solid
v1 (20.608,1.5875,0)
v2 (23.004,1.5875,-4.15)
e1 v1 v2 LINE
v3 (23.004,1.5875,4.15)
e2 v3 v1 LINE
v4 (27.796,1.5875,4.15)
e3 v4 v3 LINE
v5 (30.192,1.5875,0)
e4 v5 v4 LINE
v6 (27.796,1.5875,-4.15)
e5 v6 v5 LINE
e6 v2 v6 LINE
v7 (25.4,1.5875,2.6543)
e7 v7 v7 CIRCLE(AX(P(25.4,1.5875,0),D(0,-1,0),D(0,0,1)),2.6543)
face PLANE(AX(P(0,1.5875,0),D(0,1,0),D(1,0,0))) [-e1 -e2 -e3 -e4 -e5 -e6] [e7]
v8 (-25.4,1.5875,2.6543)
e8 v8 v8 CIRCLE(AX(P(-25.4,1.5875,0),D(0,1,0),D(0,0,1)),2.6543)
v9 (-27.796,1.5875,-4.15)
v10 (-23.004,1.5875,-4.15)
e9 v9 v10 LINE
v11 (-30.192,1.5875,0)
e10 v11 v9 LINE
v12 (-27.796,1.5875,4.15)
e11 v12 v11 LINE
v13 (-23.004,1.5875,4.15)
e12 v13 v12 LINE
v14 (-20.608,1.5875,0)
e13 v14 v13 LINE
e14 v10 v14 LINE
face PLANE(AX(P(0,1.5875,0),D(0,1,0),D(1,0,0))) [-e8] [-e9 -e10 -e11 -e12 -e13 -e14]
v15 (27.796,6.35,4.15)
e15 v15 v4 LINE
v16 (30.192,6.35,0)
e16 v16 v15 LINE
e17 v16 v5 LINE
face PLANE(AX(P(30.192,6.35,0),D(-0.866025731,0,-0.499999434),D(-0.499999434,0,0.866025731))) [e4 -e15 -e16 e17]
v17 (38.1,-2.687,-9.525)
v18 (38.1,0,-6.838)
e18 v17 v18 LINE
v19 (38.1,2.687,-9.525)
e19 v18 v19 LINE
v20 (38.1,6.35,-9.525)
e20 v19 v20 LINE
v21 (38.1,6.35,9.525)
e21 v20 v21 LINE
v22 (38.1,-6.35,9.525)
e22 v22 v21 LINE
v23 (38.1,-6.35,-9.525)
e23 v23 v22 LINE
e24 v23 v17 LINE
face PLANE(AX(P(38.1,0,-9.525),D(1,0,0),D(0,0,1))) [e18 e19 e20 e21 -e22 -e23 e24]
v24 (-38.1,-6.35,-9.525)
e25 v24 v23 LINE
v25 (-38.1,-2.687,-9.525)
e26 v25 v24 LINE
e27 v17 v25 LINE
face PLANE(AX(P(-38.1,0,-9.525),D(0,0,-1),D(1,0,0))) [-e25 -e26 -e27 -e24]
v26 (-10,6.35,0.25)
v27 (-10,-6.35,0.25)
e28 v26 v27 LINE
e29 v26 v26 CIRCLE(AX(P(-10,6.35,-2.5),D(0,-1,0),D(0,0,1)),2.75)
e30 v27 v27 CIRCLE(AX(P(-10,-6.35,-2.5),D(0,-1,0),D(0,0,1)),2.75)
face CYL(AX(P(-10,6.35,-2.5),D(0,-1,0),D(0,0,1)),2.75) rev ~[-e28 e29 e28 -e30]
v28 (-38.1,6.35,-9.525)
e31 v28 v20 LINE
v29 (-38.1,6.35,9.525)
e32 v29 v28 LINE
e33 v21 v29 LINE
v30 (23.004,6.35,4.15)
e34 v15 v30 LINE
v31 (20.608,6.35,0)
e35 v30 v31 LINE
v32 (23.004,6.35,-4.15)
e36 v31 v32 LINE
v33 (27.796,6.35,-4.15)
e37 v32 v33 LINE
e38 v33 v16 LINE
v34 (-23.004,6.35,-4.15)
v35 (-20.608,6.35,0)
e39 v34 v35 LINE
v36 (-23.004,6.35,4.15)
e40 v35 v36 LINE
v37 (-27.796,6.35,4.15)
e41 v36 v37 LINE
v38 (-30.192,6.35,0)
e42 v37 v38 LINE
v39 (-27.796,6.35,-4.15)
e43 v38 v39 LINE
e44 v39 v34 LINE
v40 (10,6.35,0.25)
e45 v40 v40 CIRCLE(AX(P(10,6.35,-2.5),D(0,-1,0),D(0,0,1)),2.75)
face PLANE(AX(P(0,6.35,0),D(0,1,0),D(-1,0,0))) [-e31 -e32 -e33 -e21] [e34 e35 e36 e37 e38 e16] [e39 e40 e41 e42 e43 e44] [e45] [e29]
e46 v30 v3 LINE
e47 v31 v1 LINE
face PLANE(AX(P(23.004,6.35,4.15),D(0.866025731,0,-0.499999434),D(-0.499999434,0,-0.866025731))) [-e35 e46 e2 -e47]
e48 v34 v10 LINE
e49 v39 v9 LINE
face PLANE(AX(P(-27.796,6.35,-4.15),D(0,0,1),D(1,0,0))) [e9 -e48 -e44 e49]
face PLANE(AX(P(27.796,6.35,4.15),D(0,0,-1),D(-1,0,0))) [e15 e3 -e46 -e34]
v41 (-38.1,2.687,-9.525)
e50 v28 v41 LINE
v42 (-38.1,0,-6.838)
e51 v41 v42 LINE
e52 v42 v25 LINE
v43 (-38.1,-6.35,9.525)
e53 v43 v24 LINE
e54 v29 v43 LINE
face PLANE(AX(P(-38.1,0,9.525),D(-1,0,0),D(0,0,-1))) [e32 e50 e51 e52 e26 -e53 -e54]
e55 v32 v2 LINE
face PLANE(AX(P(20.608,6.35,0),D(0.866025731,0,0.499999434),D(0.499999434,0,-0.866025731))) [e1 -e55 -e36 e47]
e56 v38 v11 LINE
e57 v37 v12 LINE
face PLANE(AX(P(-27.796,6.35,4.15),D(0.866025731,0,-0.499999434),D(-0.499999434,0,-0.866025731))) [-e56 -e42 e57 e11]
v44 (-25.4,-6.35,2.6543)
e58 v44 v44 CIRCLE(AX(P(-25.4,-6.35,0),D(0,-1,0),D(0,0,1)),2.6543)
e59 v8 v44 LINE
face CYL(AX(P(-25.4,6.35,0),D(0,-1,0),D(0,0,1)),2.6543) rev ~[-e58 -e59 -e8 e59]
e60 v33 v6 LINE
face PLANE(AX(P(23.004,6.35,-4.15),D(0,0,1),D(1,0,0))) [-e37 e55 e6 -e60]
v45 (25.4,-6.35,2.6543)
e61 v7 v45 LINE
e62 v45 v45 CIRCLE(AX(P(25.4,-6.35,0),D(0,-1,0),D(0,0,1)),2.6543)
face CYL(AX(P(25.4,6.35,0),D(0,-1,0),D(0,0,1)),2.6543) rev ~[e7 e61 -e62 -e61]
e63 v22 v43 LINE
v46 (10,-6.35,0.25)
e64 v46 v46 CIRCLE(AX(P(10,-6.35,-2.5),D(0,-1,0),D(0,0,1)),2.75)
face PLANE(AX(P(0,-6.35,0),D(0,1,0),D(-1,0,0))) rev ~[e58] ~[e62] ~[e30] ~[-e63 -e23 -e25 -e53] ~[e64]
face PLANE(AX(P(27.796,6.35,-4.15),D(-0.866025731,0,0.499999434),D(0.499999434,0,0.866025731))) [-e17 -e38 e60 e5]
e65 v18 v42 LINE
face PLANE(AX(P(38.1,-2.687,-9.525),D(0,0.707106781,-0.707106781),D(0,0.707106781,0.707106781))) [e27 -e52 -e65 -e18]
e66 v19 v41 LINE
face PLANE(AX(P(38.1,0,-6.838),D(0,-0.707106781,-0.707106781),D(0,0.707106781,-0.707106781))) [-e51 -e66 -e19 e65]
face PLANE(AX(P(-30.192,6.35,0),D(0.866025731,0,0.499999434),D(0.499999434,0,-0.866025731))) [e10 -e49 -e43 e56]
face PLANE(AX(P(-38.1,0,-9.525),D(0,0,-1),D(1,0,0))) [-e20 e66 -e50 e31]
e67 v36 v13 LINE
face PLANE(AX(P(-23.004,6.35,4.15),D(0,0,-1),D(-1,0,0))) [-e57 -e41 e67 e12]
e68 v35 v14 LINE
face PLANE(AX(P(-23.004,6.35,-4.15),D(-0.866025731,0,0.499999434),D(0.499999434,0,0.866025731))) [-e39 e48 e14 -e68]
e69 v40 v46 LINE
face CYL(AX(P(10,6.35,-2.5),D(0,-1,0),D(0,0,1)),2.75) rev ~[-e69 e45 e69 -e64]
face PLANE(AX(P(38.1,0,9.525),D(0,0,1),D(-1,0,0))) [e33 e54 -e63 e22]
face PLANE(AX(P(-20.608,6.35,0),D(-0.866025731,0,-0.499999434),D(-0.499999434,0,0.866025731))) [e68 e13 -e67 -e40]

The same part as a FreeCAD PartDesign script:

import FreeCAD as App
import Part
import Sketcher
Q = App.Units.Quantity

doc = App.newDocument("Part")
body = doc.addObject("PartDesign::Body", "Body")

sketch1 = body.newObject("Sketcher::SketchObject", "Sketch")
sketch1.AttachmentSupport = (doc.getObject("XZ_Plane"), [""])
sketch1.MapMode = "FlatFace"
sketch1.addGeometry(Part.LineSegment(App.Vector(-38, 10, 0), App.Vector(38, 10, 0)), False)
sketch1.addGeometry(Part.LineSegment(App.Vector(38, 10, 0), App.Vector(38, -10, 0)), False)
sketch1.addGeometry(Part.LineSegment(App.Vector(38, -10, 0), App.Vector(-38, -10, 0)), False)
sketch1.addGeometry(Part.LineSegment(App.Vector(-38, -10, 0), App.Vector(-38, 10, 0)), False)
sketch1.addConstraint(Sketcher.Constraint("Coincident", 0, 2, 1, 1))
sketch1.addConstraint(Sketcher.Constraint("Coincident", 1, 2, 2, 1))
sketch1.addConstraint(Sketcher.Constraint("Coincident", 2, 2, 3, 1))
sketch1.addConstraint(Sketcher.Constraint("Coincident", 3, 2, 0, 1))
sketch1.addConstraint(Sketcher.Constraint("Horizontal", 0))
sketch1.addConstraint(Sketcher.Constraint("Vertical", 1))
sketch1.addConstraint(Sketcher.Constraint("Horizontal", 2))
sketch1.addConstraint(Sketcher.Constraint("Vertical", 3))
sketch1.addConstraint(Sketcher.Constraint("Symmetric", 0, 2, 2, 2, -1, 1))
sketch1.addConstraint(Sketcher.Constraint("DistanceX", 0, 1, 0, 2, Q("3 in")))
sketch1.addConstraint(Sketcher.Constraint("DistanceY", 1, 2, 1, 1, Q("0.75 in")))
pad1 = body.newObject("PartDesign::Pad", "Pad")
pad1.Profile = sketch1
pad1.Length = Q("0.5 in")
pad1.Midplane = True

sketch2 = body.newObject("Sketcher::SketchObject", "Sketch001")
sketch2.AttachmentSupport = (doc.getObject("YZ_Plane"), [""])
sketch2.MapMode = "FlatFace"
sketch2.AttachmentOffset = App.Placement(App.Vector(0, 0, 1.5 * 25.4), App.Rotation())
sketch2.addGeometry(Part.LineSegment(App.Vector(0, -12.2, 0), App.Vector(2.7, -9.5, 0)), False)
sketch2.addGeometry(Part.LineSegment(App.Vector(2.7, -9.5, 0), App.Vector(0, -6.8, 0)), False)
sketch2.addGeometry(Part.LineSegment(App.Vector(0, -6.8, 0), App.Vector(-2.7, -9.5, 0)), False)
sketch2.addGeometry(Part.LineSegment(App.Vector(-2.7, -9.5, 0), App.Vector(0, -12.2, 0)), False)
sketch2.addConstraint(Sketcher.Constraint("Coincident", 0, 2, 1, 1))
sketch2.addConstraint(Sketcher.Constraint("Coincident", 1, 2, 2, 1))
sketch2.addConstraint(Sketcher.Constraint("Coincident", 2, 2, 3, 1))
sketch2.addConstraint(Sketcher.Constraint("Coincident", 3, 2, 0, 1))
sketch2.addConstraint(Sketcher.Constraint("Symmetric", 0, 2, 2, 2, -2))
sketch2.addConstraint(Sketcher.Constraint("PointOnObject", 1, 2, -2))
sketch2.addConstraint(Sketcher.Constraint("PointOnObject", 3, 2, -2))
sketch2.addConstraint(Sketcher.Constraint("Perpendicular", 0, 1))
sketch2.addConstraint(Sketcher.Constraint("Perpendicular", 1, 2))
sketch2.addConstraint(Sketcher.Constraint("Distance", 0, Q("0.1496 in")))
sketch2.addConstraint(Sketcher.Constraint("DistanceY", 0, 2, -1, 1, Q("0.375 in")))
pocket1 = body.newObject("PartDesign::Pocket", "Pocket")
pocket1.Profile = sketch2
pocket1.Type = "ThroughAll"

sketch3 = body.newObject("Sketcher::SketchObject", "Sketch002")
sketch3.AttachmentSupport = (doc.getObject("XZ_Plane"), [""])
sketch3.MapMode = "FlatFace"
sketch3.AttachmentOffset = App.Placement(App.Vector(0, 0, -0.25 * 25.4), App.Rotation())
sketch3.addGeometry(Part.Circle(App.Vector(-25.4, 0, 0), App.Vector(0, 0, 1), 2.7), False)
sketch3.addGeometry(Part.Circle(App.Vector(25.4, 0, 0), App.Vector(0, 0, 1), 2.7), False)
sketch3.addConstraint(Sketcher.Constraint("Equal", 0, 1))
sketch3.addConstraint(Sketcher.Constraint("Symmetric", 0, 3, 1, 3, -1, 1))
sketch3.addConstraint(Sketcher.Constraint("PointOnObject", 0, 3, -1))
sketch3.addConstraint(Sketcher.Constraint("Diameter", 0, Q("0.209 in")))
sketch3.addConstraint(Sketcher.Constraint("DistanceX", 0, 3, -1, 1, Q("1 in")))
doc.recompute()
hole = body.newObject("PartDesign::Hole", "Hole")
hole.Profile = sketch3
hole.ThreadType = "None"
hole.Diameter = Q("0.209 in")
hole.DepthType = "ThroughAll"
hole.Reversed = True

sketch4 = body.newObject("Sketcher::SketchObject", "Sketch003")
sketch4.AttachmentSupport = (doc.getObject("XZ_Plane"), [""])
sketch4.MapMode = "FlatFace"
sketch4.AttachmentOffset = App.Placement(App.Vector(0, 0, -0.25 * 25.4), App.Rotation())
sketch4.addGeometry(Part.Circle(App.Vector(-10, -2.5, 0), App.Vector(0, 0, 1), 2.8), False)
sketch4.addGeometry(Part.Circle(App.Vector(10, -2.5, 0), App.Vector(0, 0, 1), 2.8), False)
sketch4.addConstraint(Sketcher.Constraint("Equal", 0, 1))
sketch4.addConstraint(Sketcher.Constraint("Symmetric", 0, 3, 1, 3, -2))
sketch4.addConstraint(Sketcher.Constraint("Diameter", 0, 5.5))
sketch4.addConstraint(Sketcher.Constraint("DistanceX", 0, 3, -1, 1, Q("0.3937 in")))
sketch4.addConstraint(Sketcher.Constraint("DistanceY", 0, 3, -1, 1, 2.5))
doc.recompute()
hole2 = body.newObject("PartDesign::Hole", "Hole001")
hole2.Profile = sketch4
hole2.ThreadType = "None"
hole2.Diameter = 5.5
hole2.DepthType = "ThroughAll"
hole2.Reversed = True

sketch5 = body.newObject("Sketcher::SketchObject", "Sketch004")
sketch5.AttachmentSupport = (doc.getObject("XZ_Plane"), [""])
sketch5.MapMode = "FlatFace"
sketch5.AttachmentOffset = App.Placement(App.Vector(0, 0, -0.25 * 25.4), App.Rotation())
sketch5.addGeometry(Part.LineSegment(App.Vector(20.6, 0, 0), App.Vector(23, 4.2, 0)), False)
sketch5.addGeometry(Part.LineSegment(App.Vector(23, 4.2, 0), App.Vector(27.8, 4.2, 0)), False)
sketch5.addGeometry(Part.LineSegment(App.Vector(27.8, 4.2, 0), App.Vector(30.2, 0, 0)), False)
sketch5.addGeometry(Part.LineSegment(App.Vector(30.2, 0, 0), App.Vector(27.8, -4.2, 0)), False)
sketch5.addGeometry(Part.LineSegment(App.Vector(27.8, -4.2, 0), App.Vector(23, -4.2, 0)), False)
sketch5.addGeometry(Part.LineSegment(App.Vector(23, -4.2, 0), App.Vector(20.6, 0, 0)), False)
sketch5.addGeometry(Part.LineSegment(App.Vector(-20.6, 0, 0), App.Vector(-23, -4.2, 0)), False)
sketch5.addGeometry(Part.LineSegment(App.Vector(-23, -4.2, 0), App.Vector(-27.8, -4.2, 0)), False)
sketch5.addGeometry(Part.LineSegment(App.Vector(-27.8, -4.2, 0), App.Vector(-30.2, 0, 0)), False)
sketch5.addGeometry(Part.LineSegment(App.Vector(-30.2, 0, 0), App.Vector(-27.8, 4.2, 0)), False)
sketch5.addGeometry(Part.LineSegment(App.Vector(-27.8, 4.2, 0), App.Vector(-23, 4.2, 0)), False)
sketch5.addGeometry(Part.LineSegment(App.Vector(-23, 4.2, 0), App.Vector(-20.6, 0, 0)), False)
sketch5.addGeometry(Part.Circle(App.Vector(-25.4, 0, 0), App.Vector(0, 0, 1), 2.7), False)
sketch5.addConstraint(Sketcher.Constraint("Coincident", 0, 2, 1, 1))
sketch5.addConstraint(Sketcher.Constraint("Coincident", 1, 2, 2, 1))
sketch5.addConstraint(Sketcher.Constraint("Coincident", 2, 2, 3, 1))
sketch5.addConstraint(Sketcher.Constraint("Coincident", 3, 2, 4, 1))
sketch5.addConstraint(Sketcher.Constraint("Coincident", 4, 2, 5, 1))
sketch5.addConstraint(Sketcher.Constraint("Coincident", 5, 2, 0, 1))
sketch5.addConstraint(Sketcher.Constraint("Coincident", 6, 2, 7, 1))
sketch5.addConstraint(Sketcher.Constraint("Coincident", 7, 2, 8, 1))
sketch5.addConstraint(Sketcher.Constraint("Coincident", 8, 2, 9, 1))
sketch5.addConstraint(Sketcher.Constraint("Coincident", 9, 2, 10, 1))
sketch5.addConstraint(Sketcher.Constraint("Coincident", 10, 2, 11, 1))
sketch5.addConstraint(Sketcher.Constraint("Coincident", 11, 2, 6, 1))
sketch5.addConstraint(Sketcher.Constraint("Horizontal", 1))
sketch5.addConstraint(Sketcher.Constraint("Horizontal", 4))
sketch5.addConstraint(Sketcher.Constraint("Horizontal", 7))
sketch5.addConstraint(Sketcher.Constraint("Horizontal", 10))
sketch5.addConstraint(Sketcher.Constraint("Symmetric", 0, 2, 6, 2, -1, 1))
sketch5.addConstraint(Sketcher.Constraint("Symmetric", 2, 2, 8, 2, -1, 1))
sketch5.addConstraint(Sketcher.Constraint("Symmetric", 3, 2, 9, 2, -1, 1))
sketch5.addConstraint(Sketcher.Constraint("Symmetric", 5, 2, 11, 2, -1, 1))
sketch5.addConstraint(Sketcher.Constraint("Symmetric", 4, 2, 6, 2, -2))
sketch5.addConstraint(Sketcher.Constraint("PointOnObject", 12, 3, -1))
sketch5.addConstraint(Sketcher.Constraint("PointOnObject", 2, 2, -1))
sketch5.addConstraint(Sketcher.Constraint("PointOnObject", 5, 2, -1))
sketch5.addConstraint(Sketcher.Constraint("Parallel", 0, 3))
sketch5.addConstraint(Sketcher.Constraint("Parallel", 2, 5))
sketch5.addConstraint(Sketcher.Constraint("Parallel", 5, 8))
sketch5.addConstraint(Sketcher.Constraint("Parallel", 8, 11))
sketch5.addConstraint(Sketcher.Constraint("Diameter", 12, Q("0.209 in")))
sketch5.addConstraint(Sketcher.Constraint("DistanceX", 12, 3, -1, 1, Q("1 in")))
sketch5.addConstraint(Sketcher.Constraint("Angle", 0, Q("60 deg")))
sketch5.addConstraint(Sketcher.Constraint("DistanceX", 6, 2, 3, 2, Q("2 in")))
sketch5.addConstraint(Sketcher.Constraint("DistanceY", 3, 2, 1, 2, 8.3))
sketch5.addConstraint(Sketcher.Constraint("DistanceX", 0, 2, 2, 2, Q("0.283 in")))
pocket2 = body.newObject("PartDesign::Pocket", "Pocket001")
pocket2.Profile = sketch5
pocket2.Length = Q("0.1875 in")
pocket2.Reversed = True

doc.recompute()
